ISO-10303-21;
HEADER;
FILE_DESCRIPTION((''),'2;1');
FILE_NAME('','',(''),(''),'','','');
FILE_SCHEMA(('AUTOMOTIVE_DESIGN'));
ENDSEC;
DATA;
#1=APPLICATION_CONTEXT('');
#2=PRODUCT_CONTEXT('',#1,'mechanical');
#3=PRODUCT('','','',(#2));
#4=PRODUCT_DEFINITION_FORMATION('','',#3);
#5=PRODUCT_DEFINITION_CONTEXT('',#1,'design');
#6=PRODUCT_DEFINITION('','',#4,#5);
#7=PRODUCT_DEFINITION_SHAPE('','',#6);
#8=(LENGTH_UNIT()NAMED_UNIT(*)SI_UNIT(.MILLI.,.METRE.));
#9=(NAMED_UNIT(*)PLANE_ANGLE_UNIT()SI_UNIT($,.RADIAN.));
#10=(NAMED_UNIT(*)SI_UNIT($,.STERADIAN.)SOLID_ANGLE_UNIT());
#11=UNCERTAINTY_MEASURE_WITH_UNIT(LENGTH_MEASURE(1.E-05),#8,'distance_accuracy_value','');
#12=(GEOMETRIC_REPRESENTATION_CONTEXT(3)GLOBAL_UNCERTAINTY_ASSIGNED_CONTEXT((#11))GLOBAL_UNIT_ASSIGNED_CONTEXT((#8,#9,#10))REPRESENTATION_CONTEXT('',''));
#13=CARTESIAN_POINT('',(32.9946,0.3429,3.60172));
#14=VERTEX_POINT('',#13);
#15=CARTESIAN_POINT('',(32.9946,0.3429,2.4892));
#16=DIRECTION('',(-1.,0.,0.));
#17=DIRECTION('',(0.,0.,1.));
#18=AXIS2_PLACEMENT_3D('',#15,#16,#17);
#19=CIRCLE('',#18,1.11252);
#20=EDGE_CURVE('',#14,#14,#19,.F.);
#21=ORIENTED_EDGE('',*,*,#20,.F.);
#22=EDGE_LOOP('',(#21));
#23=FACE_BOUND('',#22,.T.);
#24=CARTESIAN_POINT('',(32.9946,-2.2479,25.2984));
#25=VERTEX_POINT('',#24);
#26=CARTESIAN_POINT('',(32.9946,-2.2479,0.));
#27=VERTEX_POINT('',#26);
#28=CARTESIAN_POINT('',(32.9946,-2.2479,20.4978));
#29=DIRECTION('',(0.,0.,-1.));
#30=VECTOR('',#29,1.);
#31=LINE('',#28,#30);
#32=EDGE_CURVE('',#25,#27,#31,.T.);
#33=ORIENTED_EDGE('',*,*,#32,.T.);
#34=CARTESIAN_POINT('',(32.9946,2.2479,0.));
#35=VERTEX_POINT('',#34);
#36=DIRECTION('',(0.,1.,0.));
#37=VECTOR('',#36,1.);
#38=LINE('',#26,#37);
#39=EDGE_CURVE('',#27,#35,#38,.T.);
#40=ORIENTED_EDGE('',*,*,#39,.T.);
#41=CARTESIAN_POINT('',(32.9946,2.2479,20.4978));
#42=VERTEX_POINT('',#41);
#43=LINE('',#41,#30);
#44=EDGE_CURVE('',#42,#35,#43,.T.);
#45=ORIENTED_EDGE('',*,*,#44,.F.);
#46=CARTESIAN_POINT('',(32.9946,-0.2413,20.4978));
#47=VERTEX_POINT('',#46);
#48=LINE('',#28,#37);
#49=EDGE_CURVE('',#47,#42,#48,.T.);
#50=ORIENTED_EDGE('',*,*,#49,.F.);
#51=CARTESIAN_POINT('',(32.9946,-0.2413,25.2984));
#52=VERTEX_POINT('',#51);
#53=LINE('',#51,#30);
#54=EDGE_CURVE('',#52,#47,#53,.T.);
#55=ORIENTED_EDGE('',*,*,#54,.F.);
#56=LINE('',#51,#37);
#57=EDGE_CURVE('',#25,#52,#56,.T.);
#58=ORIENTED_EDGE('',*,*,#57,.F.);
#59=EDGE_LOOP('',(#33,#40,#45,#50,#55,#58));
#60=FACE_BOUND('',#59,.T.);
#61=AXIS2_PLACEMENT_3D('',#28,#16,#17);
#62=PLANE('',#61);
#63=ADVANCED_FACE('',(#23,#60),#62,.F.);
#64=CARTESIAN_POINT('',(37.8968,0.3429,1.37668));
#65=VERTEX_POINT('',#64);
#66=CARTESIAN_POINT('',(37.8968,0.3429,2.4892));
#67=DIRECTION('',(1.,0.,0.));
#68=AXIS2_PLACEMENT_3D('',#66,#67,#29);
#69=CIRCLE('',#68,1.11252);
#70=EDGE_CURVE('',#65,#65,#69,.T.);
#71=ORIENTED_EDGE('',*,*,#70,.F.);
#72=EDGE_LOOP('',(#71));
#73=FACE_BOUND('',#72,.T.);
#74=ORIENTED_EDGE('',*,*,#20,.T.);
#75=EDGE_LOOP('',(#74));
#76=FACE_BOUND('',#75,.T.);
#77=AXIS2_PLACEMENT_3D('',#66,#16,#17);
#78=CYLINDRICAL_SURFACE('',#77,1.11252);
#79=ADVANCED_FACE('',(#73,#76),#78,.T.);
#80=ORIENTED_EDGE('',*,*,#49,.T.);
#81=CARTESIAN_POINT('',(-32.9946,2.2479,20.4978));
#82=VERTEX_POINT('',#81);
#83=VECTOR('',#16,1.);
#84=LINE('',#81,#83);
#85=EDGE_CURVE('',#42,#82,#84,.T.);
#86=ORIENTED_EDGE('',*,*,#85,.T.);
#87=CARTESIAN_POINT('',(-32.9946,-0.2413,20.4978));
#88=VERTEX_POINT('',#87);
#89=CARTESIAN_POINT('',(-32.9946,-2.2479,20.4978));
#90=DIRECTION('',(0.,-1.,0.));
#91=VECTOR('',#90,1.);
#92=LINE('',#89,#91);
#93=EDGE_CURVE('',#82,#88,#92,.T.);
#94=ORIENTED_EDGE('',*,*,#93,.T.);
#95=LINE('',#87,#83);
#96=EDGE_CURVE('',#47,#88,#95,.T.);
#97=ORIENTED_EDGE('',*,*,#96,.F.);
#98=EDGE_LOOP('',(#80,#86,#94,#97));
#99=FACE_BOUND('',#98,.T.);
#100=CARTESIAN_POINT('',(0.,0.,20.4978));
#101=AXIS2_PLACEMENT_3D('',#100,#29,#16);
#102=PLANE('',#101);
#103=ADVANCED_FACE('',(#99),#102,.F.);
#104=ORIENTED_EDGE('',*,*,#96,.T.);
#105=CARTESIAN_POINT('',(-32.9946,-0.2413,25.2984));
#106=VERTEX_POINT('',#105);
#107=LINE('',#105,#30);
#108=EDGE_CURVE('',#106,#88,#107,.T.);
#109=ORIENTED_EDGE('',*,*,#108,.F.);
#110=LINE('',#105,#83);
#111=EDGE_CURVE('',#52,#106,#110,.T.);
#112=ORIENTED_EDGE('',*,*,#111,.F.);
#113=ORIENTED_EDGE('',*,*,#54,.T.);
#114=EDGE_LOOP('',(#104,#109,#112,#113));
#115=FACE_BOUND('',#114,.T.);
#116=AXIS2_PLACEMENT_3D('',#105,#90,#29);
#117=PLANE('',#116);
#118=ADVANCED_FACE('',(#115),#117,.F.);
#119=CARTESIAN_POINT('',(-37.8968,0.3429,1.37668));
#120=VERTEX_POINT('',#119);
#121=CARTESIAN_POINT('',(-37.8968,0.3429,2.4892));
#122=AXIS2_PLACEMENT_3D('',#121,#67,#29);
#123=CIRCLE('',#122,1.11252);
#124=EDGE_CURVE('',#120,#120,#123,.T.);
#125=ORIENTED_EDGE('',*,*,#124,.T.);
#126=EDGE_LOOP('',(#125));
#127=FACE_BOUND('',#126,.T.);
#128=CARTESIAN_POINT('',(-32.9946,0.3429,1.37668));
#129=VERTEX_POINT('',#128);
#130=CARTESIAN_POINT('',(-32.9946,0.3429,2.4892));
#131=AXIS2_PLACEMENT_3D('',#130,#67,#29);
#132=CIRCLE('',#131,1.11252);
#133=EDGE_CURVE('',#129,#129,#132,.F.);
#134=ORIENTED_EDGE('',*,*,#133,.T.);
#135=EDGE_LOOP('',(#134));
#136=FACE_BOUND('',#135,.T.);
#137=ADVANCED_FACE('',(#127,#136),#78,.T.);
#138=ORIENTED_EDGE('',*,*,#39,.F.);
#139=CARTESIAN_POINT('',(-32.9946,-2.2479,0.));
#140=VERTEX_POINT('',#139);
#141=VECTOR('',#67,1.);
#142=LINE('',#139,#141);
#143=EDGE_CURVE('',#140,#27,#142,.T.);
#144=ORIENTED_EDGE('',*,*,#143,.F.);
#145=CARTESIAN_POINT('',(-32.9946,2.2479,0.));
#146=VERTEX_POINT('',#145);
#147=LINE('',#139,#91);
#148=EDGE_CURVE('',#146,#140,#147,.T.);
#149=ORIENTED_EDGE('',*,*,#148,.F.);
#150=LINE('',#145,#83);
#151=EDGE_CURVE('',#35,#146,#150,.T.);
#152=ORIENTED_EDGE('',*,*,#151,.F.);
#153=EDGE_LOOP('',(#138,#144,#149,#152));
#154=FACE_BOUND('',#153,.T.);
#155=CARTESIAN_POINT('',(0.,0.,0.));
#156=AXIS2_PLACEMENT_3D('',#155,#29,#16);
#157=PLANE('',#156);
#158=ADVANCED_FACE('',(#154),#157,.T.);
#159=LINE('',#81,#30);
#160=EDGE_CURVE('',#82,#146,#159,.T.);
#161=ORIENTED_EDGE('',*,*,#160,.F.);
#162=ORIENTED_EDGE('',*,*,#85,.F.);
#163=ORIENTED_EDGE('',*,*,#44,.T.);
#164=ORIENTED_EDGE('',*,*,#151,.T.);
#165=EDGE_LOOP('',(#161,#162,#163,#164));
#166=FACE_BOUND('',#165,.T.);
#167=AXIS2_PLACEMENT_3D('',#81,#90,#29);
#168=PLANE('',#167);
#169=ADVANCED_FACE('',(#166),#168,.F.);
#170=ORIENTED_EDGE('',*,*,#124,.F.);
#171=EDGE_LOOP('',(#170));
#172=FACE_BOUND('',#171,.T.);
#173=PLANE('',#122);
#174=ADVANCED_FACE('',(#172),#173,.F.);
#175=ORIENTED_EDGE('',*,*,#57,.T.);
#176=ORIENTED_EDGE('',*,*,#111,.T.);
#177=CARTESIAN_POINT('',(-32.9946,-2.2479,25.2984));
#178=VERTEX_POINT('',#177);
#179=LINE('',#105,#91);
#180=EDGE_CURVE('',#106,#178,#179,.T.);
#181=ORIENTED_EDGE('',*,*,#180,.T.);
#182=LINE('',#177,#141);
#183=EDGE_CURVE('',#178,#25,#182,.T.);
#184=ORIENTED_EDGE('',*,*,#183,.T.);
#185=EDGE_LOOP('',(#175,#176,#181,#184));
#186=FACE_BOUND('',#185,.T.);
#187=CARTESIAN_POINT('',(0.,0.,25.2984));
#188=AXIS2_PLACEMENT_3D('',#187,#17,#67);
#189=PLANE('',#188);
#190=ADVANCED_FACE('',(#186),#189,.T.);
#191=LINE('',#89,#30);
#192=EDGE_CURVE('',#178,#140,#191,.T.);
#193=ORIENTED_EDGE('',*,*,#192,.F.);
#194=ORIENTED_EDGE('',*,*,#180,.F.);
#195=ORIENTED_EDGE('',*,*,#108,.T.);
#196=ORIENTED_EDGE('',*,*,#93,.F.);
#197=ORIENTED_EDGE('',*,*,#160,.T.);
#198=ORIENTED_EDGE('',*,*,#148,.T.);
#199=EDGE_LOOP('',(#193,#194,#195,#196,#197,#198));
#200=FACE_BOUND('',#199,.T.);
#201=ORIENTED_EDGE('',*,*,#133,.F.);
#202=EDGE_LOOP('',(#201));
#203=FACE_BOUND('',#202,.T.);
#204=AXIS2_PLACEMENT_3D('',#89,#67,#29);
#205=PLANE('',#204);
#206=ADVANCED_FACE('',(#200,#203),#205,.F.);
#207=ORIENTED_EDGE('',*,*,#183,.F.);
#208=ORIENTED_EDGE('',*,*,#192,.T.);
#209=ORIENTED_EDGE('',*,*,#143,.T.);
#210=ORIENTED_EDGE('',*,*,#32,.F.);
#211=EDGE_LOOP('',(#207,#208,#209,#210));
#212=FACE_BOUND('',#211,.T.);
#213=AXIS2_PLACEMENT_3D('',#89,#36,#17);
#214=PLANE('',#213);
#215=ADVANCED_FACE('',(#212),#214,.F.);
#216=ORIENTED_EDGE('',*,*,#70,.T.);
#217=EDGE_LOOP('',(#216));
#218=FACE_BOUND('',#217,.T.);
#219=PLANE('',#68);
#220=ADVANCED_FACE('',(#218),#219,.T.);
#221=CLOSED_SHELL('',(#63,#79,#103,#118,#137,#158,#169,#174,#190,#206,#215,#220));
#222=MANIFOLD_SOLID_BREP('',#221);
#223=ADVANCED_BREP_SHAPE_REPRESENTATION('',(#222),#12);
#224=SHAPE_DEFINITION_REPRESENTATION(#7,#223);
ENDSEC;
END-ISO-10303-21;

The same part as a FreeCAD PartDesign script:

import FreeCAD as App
import Part
import Sketcher
Q = App.Units.Quantity


def add_polygon(sketch, points):
    """Adds a closed chain of lines whose ends are joined by coincident constraints."""
    first, n = sketch.GeometryCount, len(points)
    for a, b in zip(points, points[1:] + points[:1]):
        sketch.addGeometry(Part.LineSegment(App.Vector(*a, 0), App.Vector(*b, 0)), False)
    for i in range(n):
        sketch.addConstraint(Sketcher.Constraint("Coincident", first + i, 2, first + (i + 1) % n, 1))

doc = App.newDocument("Part")
body = doc.addObject("PartDesign::Body", "Body")

sketch1 = doc.addObject("Sketcher::SketchObject", "Sketch")
body.addObject(sketch1)
sketch1.AttachmentSupport = (doc.XY_Plane, [""])
sketch1.MapMode = "FlatFace"
add_polygon(sketch1, [(-33, 2.2), (-33, -2.2), (33, -2.2), (33, 2.2)])
sketch1.addConstraint([
    Sketcher.Constraint("Vertical", 0),
    Sketcher.Constraint("Horizontal", 1),
    Sketcher.Constraint("Vertical", 2),
    Sketcher.Constraint("Horizontal", 3),
    Sketcher.Constraint("Symmetric", 0, 2, 2, 2, -1, 1),
    Sketcher.Constraint("DistanceX", 1, 1, 1, 2, Q("2.598 in")),
    Sketcher.Constraint("DistanceY", 0, 2, 0, 1, Q("0.177 in")),
])
pad1 = doc.addObject("PartDesign::Pad", "Pad")
body.addObject(pad1)
pad1.Profile = sketch1
pad1.Length = Q("0.807 in")

sketch2 = doc.addObject("Sketcher::SketchObject", "Sketch001")
body.addObject(sketch2)
sketch2.AttachmentSupport = (doc.XY_Plane, [""])
sketch2.MapMode = "FlatFace"
sketch2.AttachmentOffset = App.Placement(App.Vector(0, 0, 0.807 * 25.4), App.Rotation())
add_polygon(sketch2, [(-33, -0.2), (-33, -2.2), (33, -2.2), (33, -0.2)])
sketch2.addConstraint([
    Sketcher.Constraint("Vertical", 0),
    Sketcher.Constraint("Horizontal", 1),
    Sketcher.Constraint("Vertical", 2),
    Sketcher.Constraint("Horizontal", 3),
    Sketcher.Constraint("DistanceX", 1, 1, 1, 2, Q("2.598 in")),
    Sketcher.Constraint("DistanceY", 0, 2, 0, 1, Q("0.079 in")),
    Sketcher.Constraint("DistanceX", 0, 2, -1, 1, Q("1.299 in")),
    Sketcher.Constraint("DistanceY", 0, 2, -1, 1, Q("0.0885 in")),
])
pad2 = doc.addObject("PartDesign::Pad", "Pad001")
body.addObject(pad2)
pad2.Profile = sketch2
pad2.Length = Q("0.189 in")

sketch3 = doc.addObject("Sketcher::SketchObject", "Sketch002")
body.addObject(sketch3)
sketch3.AttachmentSupport = (doc.YZ_Plane, [""])
sketch3.MapMode = "FlatFace"
sketch3.addGeometry(Part.Circle(App.Vector(0.3, 2.5, 0), App.Vector(0, 0, 1), 1.1), False)
sketch3.addConstraint([
    Sketcher.Constraint("Diameter", 0, Q("0.0876 in")),
    Sketcher.Constraint("DistanceY", -1, 1, 0, 3, Q("0.098 in")),
    Sketcher.Constraint("DistanceX", -1, 1, 0, 3, Q("0.0135 in")),
])
pad3 = doc.addObject("PartDesign::Pad", "Pad002")
body.addObject(pad3)
pad3.Profile = sketch3
pad3.Length = Q("2.984 in")
pad3.Midplane = True

doc.recompute()
